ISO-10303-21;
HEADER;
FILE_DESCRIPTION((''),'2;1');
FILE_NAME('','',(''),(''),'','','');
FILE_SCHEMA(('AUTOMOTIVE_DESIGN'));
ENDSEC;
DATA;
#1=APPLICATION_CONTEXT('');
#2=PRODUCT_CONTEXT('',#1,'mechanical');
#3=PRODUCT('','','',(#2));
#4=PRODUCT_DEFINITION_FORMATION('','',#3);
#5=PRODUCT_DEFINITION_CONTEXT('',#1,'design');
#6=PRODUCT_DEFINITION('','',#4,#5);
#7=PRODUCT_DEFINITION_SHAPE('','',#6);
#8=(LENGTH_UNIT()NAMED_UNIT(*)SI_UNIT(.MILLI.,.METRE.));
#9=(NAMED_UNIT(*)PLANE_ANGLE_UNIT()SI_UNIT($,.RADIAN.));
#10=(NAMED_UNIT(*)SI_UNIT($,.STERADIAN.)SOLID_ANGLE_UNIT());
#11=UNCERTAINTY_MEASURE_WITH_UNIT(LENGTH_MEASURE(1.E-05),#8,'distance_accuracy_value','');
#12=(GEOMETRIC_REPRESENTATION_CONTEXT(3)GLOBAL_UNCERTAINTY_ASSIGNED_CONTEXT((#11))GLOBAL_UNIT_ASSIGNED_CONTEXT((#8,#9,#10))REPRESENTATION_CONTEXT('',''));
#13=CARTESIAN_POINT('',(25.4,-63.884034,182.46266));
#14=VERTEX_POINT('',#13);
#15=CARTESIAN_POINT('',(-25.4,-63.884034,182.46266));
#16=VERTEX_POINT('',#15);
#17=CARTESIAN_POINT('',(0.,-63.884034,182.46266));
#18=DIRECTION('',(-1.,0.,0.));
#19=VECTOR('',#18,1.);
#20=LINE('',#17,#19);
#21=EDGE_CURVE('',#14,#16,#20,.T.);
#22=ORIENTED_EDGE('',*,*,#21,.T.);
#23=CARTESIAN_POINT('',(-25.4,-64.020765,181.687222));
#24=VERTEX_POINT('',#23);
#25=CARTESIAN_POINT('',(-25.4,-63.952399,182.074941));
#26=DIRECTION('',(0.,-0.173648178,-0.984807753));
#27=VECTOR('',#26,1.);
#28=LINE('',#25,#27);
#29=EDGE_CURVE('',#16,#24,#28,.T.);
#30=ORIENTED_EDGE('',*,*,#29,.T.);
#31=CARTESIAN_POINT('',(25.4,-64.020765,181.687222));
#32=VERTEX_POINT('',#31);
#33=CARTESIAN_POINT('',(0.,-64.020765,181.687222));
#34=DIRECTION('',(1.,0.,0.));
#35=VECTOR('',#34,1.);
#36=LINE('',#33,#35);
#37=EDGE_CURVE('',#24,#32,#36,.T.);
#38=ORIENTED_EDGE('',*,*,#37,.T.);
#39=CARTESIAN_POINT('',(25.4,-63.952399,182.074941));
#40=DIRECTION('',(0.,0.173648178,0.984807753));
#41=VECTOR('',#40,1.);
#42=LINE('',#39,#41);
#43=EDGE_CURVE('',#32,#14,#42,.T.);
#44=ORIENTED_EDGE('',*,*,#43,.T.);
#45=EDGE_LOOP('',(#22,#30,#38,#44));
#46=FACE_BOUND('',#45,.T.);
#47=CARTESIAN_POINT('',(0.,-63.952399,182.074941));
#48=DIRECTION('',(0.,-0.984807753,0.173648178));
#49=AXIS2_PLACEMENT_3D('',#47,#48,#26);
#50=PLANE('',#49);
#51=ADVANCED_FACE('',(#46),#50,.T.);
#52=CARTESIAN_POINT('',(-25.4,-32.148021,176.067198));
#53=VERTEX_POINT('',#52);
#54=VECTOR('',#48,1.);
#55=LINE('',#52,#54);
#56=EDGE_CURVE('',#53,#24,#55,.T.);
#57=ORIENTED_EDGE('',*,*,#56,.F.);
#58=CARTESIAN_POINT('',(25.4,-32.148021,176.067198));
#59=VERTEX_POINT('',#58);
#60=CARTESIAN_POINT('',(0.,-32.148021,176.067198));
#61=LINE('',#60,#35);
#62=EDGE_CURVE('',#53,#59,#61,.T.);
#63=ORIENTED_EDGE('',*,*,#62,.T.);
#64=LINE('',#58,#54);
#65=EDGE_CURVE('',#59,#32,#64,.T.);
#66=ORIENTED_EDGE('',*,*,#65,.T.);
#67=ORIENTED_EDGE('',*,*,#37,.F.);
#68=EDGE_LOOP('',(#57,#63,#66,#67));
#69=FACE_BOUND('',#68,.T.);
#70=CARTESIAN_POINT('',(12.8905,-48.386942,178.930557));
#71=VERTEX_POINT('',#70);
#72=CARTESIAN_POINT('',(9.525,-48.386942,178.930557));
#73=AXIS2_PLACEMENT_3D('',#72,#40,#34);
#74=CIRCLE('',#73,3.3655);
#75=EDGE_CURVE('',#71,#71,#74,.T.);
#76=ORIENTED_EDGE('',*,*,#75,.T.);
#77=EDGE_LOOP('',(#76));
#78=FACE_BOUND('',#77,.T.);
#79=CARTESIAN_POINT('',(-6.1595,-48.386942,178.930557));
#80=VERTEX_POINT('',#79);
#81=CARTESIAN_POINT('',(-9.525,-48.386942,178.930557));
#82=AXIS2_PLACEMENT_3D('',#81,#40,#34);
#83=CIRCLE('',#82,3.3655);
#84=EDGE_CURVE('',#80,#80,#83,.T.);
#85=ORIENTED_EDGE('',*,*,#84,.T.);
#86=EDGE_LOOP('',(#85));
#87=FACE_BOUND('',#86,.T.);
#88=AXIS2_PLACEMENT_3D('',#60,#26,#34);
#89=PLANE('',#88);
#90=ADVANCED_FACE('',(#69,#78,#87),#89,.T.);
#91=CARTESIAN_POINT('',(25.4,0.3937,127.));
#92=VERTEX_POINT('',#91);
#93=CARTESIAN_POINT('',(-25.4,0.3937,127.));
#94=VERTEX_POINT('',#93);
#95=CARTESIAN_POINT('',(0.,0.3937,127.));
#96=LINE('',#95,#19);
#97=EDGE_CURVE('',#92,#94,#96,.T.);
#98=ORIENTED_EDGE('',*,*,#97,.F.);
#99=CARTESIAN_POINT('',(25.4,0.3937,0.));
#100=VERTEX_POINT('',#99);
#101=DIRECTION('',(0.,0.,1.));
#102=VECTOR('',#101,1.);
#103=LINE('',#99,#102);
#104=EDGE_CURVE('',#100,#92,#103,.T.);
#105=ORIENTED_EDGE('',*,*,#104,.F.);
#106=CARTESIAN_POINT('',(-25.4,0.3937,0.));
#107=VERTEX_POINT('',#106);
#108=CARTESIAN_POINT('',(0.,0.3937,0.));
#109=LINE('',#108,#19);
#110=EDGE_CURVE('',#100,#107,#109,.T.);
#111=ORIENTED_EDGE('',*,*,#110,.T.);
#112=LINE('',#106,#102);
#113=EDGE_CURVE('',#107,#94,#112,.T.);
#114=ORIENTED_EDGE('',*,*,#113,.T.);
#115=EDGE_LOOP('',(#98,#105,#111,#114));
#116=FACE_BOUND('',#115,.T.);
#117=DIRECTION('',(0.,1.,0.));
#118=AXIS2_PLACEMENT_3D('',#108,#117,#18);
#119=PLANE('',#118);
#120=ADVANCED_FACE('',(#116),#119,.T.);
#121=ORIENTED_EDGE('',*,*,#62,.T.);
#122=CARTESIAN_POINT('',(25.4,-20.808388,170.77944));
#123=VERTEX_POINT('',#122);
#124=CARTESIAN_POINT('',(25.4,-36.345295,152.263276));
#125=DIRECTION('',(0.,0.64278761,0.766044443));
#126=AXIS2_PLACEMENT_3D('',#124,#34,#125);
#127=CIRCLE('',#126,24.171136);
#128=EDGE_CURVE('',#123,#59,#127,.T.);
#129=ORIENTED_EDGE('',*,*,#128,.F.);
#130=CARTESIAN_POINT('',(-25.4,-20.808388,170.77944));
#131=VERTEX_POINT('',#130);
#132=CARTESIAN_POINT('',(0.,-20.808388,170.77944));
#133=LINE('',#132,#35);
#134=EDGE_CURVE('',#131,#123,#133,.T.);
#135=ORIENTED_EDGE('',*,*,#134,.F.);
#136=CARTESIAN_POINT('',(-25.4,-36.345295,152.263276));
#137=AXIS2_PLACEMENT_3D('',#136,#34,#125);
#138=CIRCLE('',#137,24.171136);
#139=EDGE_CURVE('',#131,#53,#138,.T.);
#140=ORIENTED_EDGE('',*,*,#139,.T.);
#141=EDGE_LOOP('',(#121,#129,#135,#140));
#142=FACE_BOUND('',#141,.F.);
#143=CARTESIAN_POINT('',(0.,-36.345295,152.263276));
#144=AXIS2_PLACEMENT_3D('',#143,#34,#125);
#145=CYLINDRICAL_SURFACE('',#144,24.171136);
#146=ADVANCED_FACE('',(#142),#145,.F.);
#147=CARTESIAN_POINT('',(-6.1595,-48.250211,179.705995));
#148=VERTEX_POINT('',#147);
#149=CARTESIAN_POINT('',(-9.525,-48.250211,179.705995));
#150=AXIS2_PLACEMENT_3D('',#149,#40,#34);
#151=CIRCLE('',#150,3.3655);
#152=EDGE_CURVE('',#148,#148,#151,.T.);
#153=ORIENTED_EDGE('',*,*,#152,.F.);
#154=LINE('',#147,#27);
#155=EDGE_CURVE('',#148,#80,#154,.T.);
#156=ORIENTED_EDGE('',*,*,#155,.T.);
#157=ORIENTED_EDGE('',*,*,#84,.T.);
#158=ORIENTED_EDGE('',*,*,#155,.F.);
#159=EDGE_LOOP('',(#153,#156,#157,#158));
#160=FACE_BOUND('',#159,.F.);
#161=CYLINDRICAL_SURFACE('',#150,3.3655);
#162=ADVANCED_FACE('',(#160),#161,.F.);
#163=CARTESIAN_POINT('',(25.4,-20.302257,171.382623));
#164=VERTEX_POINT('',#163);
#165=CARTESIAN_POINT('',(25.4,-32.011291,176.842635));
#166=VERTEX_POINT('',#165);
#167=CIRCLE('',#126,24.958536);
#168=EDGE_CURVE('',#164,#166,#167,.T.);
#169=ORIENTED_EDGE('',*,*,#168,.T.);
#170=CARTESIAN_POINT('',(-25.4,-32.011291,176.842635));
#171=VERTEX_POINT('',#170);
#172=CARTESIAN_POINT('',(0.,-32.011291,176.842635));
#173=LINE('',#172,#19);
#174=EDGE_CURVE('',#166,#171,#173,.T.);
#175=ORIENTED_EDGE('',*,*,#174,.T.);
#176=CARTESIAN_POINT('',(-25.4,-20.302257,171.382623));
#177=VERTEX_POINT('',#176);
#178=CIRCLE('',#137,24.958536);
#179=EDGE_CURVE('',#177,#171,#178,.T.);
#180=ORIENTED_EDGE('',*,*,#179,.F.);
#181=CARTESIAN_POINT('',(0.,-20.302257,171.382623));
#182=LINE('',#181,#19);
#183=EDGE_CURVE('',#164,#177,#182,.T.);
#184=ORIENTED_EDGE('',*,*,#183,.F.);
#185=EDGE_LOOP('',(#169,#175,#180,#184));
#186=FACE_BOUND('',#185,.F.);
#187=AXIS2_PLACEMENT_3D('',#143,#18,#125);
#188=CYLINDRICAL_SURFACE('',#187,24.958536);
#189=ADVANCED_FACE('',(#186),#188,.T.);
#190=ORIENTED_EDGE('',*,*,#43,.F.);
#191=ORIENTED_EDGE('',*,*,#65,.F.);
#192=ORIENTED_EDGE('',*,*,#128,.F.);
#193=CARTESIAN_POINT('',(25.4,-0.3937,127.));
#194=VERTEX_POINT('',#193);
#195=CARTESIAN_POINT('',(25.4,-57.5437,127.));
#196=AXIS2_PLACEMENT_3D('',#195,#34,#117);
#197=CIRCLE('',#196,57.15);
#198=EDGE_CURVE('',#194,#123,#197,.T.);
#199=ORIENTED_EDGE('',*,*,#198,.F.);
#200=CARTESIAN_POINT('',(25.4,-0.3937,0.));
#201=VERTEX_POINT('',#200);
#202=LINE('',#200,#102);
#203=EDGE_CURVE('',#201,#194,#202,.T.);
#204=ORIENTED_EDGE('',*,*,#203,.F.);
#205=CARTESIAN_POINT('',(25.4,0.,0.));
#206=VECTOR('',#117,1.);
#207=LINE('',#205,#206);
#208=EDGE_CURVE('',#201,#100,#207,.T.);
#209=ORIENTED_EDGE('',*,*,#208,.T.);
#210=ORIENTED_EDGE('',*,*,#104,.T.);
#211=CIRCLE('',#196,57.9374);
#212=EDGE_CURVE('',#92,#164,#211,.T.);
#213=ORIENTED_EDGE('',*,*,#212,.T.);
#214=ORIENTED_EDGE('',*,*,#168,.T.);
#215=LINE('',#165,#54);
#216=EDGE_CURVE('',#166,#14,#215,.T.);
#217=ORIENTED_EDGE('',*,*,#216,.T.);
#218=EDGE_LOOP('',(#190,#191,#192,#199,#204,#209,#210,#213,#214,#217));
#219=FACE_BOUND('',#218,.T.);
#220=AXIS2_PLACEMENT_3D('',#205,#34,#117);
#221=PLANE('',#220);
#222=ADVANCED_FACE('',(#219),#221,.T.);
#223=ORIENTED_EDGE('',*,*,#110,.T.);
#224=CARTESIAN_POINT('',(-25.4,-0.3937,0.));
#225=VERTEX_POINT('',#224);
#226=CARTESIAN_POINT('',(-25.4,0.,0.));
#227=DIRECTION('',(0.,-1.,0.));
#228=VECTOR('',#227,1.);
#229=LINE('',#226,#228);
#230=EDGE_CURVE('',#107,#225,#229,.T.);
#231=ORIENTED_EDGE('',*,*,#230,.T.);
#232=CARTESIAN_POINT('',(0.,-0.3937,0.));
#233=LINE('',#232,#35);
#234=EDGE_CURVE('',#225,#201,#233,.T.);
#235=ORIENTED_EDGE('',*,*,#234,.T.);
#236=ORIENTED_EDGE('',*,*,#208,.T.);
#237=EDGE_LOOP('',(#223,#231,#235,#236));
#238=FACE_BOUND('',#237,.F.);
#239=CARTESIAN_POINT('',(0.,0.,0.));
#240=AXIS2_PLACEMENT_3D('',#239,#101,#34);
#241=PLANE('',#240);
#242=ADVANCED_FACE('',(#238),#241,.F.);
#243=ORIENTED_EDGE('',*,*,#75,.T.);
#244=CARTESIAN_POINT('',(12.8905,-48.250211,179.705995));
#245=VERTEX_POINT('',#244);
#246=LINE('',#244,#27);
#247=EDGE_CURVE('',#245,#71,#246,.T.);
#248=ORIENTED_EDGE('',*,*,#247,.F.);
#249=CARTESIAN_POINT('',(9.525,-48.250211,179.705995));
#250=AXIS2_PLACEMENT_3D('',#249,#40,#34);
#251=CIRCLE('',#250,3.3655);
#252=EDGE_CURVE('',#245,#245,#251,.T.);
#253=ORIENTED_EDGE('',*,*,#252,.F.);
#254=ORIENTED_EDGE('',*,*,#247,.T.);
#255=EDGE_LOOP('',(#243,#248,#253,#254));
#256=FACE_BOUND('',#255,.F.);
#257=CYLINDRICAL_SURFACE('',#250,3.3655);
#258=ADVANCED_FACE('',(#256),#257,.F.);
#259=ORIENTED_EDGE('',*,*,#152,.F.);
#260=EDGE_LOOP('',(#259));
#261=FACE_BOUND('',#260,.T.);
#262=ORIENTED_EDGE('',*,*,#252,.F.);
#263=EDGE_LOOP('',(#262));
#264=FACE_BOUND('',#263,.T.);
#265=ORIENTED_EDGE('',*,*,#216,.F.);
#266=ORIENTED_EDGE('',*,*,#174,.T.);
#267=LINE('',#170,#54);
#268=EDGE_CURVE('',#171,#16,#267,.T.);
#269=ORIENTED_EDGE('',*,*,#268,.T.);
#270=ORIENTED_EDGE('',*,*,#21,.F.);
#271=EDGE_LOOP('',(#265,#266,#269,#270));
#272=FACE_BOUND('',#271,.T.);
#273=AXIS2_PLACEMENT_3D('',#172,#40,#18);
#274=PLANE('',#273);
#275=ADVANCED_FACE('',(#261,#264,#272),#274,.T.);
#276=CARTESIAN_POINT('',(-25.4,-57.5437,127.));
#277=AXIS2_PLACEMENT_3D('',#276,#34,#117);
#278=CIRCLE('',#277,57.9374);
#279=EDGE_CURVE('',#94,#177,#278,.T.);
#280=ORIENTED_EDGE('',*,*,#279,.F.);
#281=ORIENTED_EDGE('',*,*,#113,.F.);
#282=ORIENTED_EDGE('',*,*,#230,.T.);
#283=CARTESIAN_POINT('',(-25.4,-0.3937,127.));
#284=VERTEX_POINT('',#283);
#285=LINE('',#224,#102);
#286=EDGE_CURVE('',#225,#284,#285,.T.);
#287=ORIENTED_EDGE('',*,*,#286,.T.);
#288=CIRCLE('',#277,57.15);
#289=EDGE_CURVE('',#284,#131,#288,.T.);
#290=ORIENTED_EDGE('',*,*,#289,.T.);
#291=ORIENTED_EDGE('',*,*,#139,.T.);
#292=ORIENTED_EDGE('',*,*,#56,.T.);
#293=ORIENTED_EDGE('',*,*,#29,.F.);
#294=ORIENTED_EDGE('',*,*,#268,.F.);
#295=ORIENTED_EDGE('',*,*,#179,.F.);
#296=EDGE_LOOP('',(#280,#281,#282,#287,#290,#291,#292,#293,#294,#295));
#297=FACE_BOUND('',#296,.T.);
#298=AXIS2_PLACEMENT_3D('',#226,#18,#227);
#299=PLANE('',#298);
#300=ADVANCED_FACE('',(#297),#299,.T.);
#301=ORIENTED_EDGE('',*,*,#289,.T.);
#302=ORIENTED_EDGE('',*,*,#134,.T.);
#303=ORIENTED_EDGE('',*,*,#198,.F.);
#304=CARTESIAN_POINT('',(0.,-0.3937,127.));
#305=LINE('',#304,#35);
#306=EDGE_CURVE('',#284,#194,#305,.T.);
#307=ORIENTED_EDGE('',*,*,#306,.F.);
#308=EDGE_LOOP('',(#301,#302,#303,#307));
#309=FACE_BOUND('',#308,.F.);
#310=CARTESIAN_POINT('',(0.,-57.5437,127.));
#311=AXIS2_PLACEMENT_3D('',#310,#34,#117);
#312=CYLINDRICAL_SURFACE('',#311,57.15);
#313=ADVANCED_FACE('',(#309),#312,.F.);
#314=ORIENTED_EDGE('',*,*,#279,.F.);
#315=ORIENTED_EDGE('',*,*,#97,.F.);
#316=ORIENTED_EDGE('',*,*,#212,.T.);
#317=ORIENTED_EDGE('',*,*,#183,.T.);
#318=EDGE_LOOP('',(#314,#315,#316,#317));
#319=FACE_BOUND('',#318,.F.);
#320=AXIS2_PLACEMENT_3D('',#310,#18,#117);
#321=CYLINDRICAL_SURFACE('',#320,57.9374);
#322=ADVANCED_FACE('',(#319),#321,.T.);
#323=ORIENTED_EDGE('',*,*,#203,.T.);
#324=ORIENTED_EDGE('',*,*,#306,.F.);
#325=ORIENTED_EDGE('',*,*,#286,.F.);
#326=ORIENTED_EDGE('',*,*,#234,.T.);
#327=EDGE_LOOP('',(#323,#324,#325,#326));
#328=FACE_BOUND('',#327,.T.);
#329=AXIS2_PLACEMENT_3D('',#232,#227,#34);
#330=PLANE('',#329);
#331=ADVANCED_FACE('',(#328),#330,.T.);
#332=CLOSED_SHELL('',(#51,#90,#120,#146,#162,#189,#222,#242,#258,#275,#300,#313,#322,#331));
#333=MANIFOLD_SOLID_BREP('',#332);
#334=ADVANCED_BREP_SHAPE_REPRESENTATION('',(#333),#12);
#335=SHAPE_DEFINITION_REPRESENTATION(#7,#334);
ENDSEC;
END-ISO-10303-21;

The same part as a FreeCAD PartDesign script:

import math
import FreeCAD as App
import Part
import Sketcher
Q = App.Units.Quantity

doc = App.newDocument("Part")
body = doc.addObject("PartDesign::Body", "Body")

sketch1 = body.newObject("Sketcher::SketchObject", "Sketch")
sketch1.AttachmentSupport = (doc.getObject("XY_Plane"), [""])
sketch1.MapMode = "FlatFace"
sketch1.addGeometry(Part.LineSegment(App.Vector(-25.4, 0.4, 0), App.Vector(-25.4, -0.4, 0)), False)
sketch1.addGeometry(Part.LineSegment(App.Vector(-25.4, -0.4, 0), App.Vector(25.4, -0.4, 0)), False)
sketch1.addGeometry(Part.LineSegment(App.Vector(25.4, -0.4, 0), App.Vector(25.4, 0.4, 0)), False)
sketch1.addGeometry(Part.LineSegment(App.Vector(25.4, 0.4, 0), App.Vector(-25.4, 0.4, 0)), False)
sketch1.addConstraint(Sketcher.Constraint("Coincident", 0, 2, 1, 1))
sketch1.addConstraint(Sketcher.Constraint("Coincident", 1, 2, 2, 1))
sketch1.addConstraint(Sketcher.Constraint("Coincident", 2, 2, 3, 1))
sketch1.addConstraint(Sketcher.Constraint("Coincident", 3, 2, 0, 1))
sketch1.addConstraint(Sketcher.Constraint("Vertical", 0))
sketch1.addConstraint(Sketcher.Constraint("Horizontal", 1))
sketch1.addConstraint(Sketcher.Constraint("Vertical", 2))
sketch1.addConstraint(Sketcher.Constraint("Horizontal", 3))
sketch1.addConstraint(Sketcher.Constraint("Symmetric", 0, 2, 2, 2, -1, 1))
sketch1.addConstraint(Sketcher.Constraint("DistanceX", 1, 1, 1, 2, Q("2 in")))
sketch1.addConstraint(Sketcher.Constraint("DistanceY", 0, 2, 0, 1, Q("0.031 in")))

sketch2 = body.newObject("Sketcher::SketchObject", "Sketch001")
sketch2.AttachmentSupport = (doc.getObject("YZ_Plane"), [""])
sketch2.MapMode = "FlatFace"
sketch2.addGeometry(Part.LineSegment(App.Vector(0, 0, 0), App.Vector(0, 127, 0)), False)
sketch2.addGeometry(Part.ArcOfCircle(Part.Circle(App.Vector(-58, 127, 0), App.Vector(0, 0, 1), 58), math.radians(0), math.radians(50)), False)
sketch2.addGeometry(Part.ArcOfCircle(Part.Circle(App.Vector(-36, 152, 0), App.Vector(0, 0, 1), 25), math.radians(50), math.radians(80)), False)
sketch2.addGeometry(Part.LineSegment(App.Vector(-32, 176, 0), App.Vector(-64, 182, 0)), False)
sketch2.addConstraint(Sketcher.Constraint("Tangent", 0, 2, 1, 1))
sketch2.addConstraint(Sketcher.Constraint("Tangent", 1, 2, 2, 1))
sketch2.addConstraint(Sketcher.Constraint("Tangent", 2, 2, 3, 1))
sketch2.addConstraint(Sketcher.Constraint("Vertical", 0))
sketch2.addConstraint(Sketcher.Constraint("Coincident", 0, 1, -1, 1))
sketch2.addConstraint(Sketcher.Constraint("DistanceY", 0, 1, 0, 2, Q("5 in")))
sketch2.addConstraint(Sketcher.Constraint("Angle", 3, Q("170 deg")))
sketch2.addConstraint(Sketcher.Constraint("Radius", 1, Q("2.2655 in")))
sketch2.addConstraint(Sketcher.Constraint("Radius", 2, Q("24.564836 mm")))
sketch2.addConstraint(Sketcher.Constraint("DistanceX", 3, 2, -1, 1, Q("63.952399 mm")))
sketch2.addConstraint(Sketcher.Constraint("DistanceY", -1, 1, 1, 2, Q("171.081032 mm")))
doc.recompute()

additivepipe = body.newObject("PartDesign::AdditivePipe", "AdditivePipe")
additivepipe.Profile = sketch1
additivepipe.Spine = (sketch2, ["Edge1", "Edge2", "Edge3", "Edge4"])

sketch3 = body.newObject("Sketcher::SketchObject", "Sketch002")
sketch3.Placement = App.Placement(App.Vector(0, 29.276613, 166.035924), App.Rotation(App.Vector(1, 0, 0), App.Vector(0, 0.984807753, -0.173648178), App.Vector(0, 0.173648178, 0.984807753), "ZXY"))
sketch3.addGeometry(Part.Circle(App.Vector(-9.5, -78.7, 0), App.Vector(0, 0, 1), 3.4), False)
sketch3.addGeometry(Part.Circle(App.Vector(9.5, -78.7, 0), App.Vector(0, 0, 1), 3.4), False)
sketch3.addConstraint(Sketcher.Constraint("Equal", 0, 1))
sketch3.addConstraint(Sketcher.Constraint("Symmetric", 0, 3, 1, 3, -2))
sketch3.addConstraint(Sketcher.Constraint("Diameter", 0, Q("0.265 in")))
sketch3.addConstraint(Sketcher.Constraint("DistanceX", 0, 3, 1, 3, Q("0.75 in")))
sketch3.addConstraint(Sketcher.Constraint("DistanceY", 0, 3, -1, 1, Q("78.7228 mm")))
pocket1 = body.newObject("PartDesign::Pocket", "Pocket")
pocket1.Profile = sketch3
pocket1.Length = Q("1 in")

doc.recompute()
